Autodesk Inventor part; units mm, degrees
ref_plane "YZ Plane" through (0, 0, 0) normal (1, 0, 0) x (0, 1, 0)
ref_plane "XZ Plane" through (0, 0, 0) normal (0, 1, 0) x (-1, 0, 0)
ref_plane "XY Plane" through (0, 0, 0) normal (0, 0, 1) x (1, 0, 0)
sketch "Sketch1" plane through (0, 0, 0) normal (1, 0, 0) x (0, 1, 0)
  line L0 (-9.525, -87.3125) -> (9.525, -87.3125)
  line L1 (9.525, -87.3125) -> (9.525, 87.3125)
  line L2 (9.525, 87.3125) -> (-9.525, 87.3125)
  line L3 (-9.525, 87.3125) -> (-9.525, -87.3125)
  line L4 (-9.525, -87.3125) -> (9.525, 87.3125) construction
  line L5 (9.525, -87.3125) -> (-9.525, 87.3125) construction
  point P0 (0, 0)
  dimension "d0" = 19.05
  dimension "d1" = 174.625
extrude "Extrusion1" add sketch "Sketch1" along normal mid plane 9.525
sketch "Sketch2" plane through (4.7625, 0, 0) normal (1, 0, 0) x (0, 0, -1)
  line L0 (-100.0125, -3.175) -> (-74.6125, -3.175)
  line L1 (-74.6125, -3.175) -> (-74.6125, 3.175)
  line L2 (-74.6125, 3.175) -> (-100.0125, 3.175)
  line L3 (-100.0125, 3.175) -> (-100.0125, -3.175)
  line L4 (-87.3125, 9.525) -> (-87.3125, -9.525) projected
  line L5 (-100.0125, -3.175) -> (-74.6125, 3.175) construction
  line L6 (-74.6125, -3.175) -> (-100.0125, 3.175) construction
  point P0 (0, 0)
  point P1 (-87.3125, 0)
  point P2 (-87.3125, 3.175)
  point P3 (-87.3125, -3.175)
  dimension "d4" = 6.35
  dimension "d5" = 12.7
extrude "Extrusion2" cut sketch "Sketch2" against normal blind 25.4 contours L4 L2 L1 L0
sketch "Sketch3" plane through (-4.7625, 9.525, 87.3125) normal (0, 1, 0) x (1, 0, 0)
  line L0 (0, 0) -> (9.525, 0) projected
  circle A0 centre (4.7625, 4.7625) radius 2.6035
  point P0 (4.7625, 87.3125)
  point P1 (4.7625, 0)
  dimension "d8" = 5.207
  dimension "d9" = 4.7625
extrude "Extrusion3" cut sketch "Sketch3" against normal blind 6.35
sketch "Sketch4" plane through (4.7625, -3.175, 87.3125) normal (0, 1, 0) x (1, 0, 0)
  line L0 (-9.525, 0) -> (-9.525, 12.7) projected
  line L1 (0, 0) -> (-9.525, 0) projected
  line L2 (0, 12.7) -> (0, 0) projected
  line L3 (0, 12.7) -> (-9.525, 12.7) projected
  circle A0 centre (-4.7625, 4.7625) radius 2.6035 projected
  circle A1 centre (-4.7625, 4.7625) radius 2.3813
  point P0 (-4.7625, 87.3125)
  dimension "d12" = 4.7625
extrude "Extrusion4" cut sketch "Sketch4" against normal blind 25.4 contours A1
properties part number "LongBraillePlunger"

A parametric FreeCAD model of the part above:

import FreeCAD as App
import Part
import Sketcher
Q = App.Units.Quantity


def add_polygon(sketch, points):
    """Adds a closed chain of lines whose ends are joined by coincident constraints."""
    first, n = sketch.GeometryCount, len(points)
    for a, b in zip(points, points[1:] + points[:1]):
        sketch.addGeometry(Part.LineSegment(App.Vector(*a, 0), App.Vector(*b, 0)), False)
    for i in range(n):
        sketch.addConstraint(Sketcher.Constraint("Coincident", first + i, 2, first + (i + 1) % n, 1))

doc = App.newDocument("Part")
params = doc.addObject("Spreadsheet::Sheet", "Params")
for row, (alias, value) in enumerate([
    ("sketch1_width", "0.75 in"),
    ("sketch1_height", "6.875 in"),
    ("pad1_length", "0.375 in"),
    ("sketch2_height", "0.5 in"),
    ("sketch2_width", "0.25 in"),
    ("pocket1_length", "1 in"),
    ("sketch3_diameter", "0.205 in"),
    ("pocket2_length", "0.25 in"),
    ("sketch4_diameter", "0.1875 in"),
    ("pocket3_length", "1 in"),
], start=1):
    params.set(f"A{row}", alias)
    params.set(f"B{row}", "=" + value)
    params.setAlias(f"B{row}", alias)

body = doc.addObject("PartDesign::Body", "Body")

# Sketch on YZ plane
sketch1 = body.newObject("Sketcher::SketchObject", "Sketch")
sketch1.AttachmentSupport = (doc.getObject("YZ_Plane"), [""])
sketch1.MapMode = "FlatFace"
add_polygon(sketch1, [(-9.525, 87.3125), (-9.525, -87.3125), (9.525, -87.3125), (9.525, 87.3125)])  # lines 0-3
sketch1.addConstraint([
    Sketcher.Constraint("Vertical", 0),
    Sketcher.Constraint("Horizontal", 1),
    Sketcher.Constraint("Vertical", 2),
    Sketcher.Constraint("Horizontal", 3),
    Sketcher.Constraint("Symmetric", 0, 2, 2, 2, -1, 1),
    Sketcher.Constraint("DistanceX", 1, 1, 1, 2, Q("0.75 in")),
    Sketcher.Constraint("DistanceY", 0, 2, 0, 1, Q("6.875 in")),
])
sketch1.setExpression("Constraints[9]", "Params.sketch1_width")
sketch1.setExpression("Constraints[10]", "Params.sketch1_height")
pad1 = body.newObject("PartDesign::Pad", "Pad")
pad1.Profile = sketch1
pad1.setExpression("Length", "Params.pad1_length")
pad1.Midplane = True

# Sketch on YZ plane
sketch2 = body.newObject("Sketcher::SketchObject", "Sketch001")
sketch2.AttachmentSupport = (doc.getObject("YZ_Plane"), [""])
sketch2.MapMode = "FlatFace"
sketch2.AttachmentOffset = App.Placement(App.Vector(0, 0, 0.1875 * 25.4), App.Rotation())
add_polygon(sketch2, [(3.175, 87.3125), (-3.175, 87.3125), (-3.175, 74.6125), (3.175, 74.6125)])  # lines 0-3
sketch2.addConstraint([
    Sketcher.Constraint("Horizontal", 0),
    Sketcher.Constraint("Vertical", 1),
    Sketcher.Constraint("Horizontal", 2),
    Sketcher.Constraint("Vertical", 3),
    Sketcher.Constraint("DistanceY", 1, 2, 1, 1, Q("0.5 in")),
    Sketcher.Constraint("DistanceX", 0, 2, 0, 1, Q("0.25 in")),
    Sketcher.Constraint("DistanceX", 0, 2, -1, 1, Q("0.125 in")),
    Sketcher.Constraint("DistanceY", -1, 1, 0, 2, Q("3.4375 in")),
])
sketch2.setExpression("Constraints[8]", "Params.sketch2_height")
sketch2.setExpression("Constraints[9]", "Params.sketch2_width")
pocket1 = body.newObject("PartDesign::Pocket", "Pocket")
pocket1.Profile = sketch2
pocket1.setExpression("Length", "Params.pocket1_length")

# Sketch on XZ plane
sketch3 = body.newObject("Sketcher::SketchObject", "Sketch002")
sketch3.AttachmentSupport = (doc.getObject("XZ_Plane"), [""])
sketch3.MapMode = "FlatFace"
sketch3.AttachmentOffset = App.Placement(App.Vector(0, 0, -0.375 * 25.4), App.Rotation())
sketch3.addGeometry(Part.Circle(App.Vector(0, 82.55, 0), App.Vector(0, 0, 1), 2.6035), False)
sketch3.addConstraint([
    Sketcher.Constraint("PointOnObject", 0, 3, -2),
    Sketcher.Constraint("Diameter", 0, Q("0.205 in")),
    Sketcher.Constraint("DistanceY", -1, 1, 0, 3, Q("3.25 in")),
])
sketch3.setExpression("Constraints[1]", "Params.sketch3_diameter")
pocket2 = body.newObject("PartDesign::Pocket", "Pocket001")
pocket2.Profile = sketch3
pocket2.setExpression("Length", "Params.pocket2_length")
pocket2.Reversed = True

# Sketch on XZ plane
sketch4 = body.newObject("Sketcher::SketchObject", "Sketch003")
sketch4.AttachmentSupport = (doc.getObject("XZ_Plane"), [""])
sketch4.MapMode = "FlatFace"
sketch4.AttachmentOffset = App.Placement(App.Vector(0, 0, 0.125 * 25.4), App.Rotation())
sketch4.addGeometry(Part.Circle(App.Vector(0, 82.55, 0), App.Vector(0, 0, 1), 2.3813), False)
sketch4.addConstraint([
    Sketcher.Constraint("PointOnObject", 0, 3, -2),
    Sketcher.Constraint("Diameter", 0, Q("0.1875 in")),
    Sketcher.Constraint("DistanceY", -1, 1, 0, 3, Q("3.25 in")),
])
sketch4.setExpression("Constraints[1]", "Params.sketch4_diameter")
pocket3 = body.newObject("PartDesign::Pocket", "Pocket002")
pocket3.Profile = sketch4
pocket3.setExpression("Length", "Params.pocket3_length")
pocket3.Reversed = True

doc.recompute()
